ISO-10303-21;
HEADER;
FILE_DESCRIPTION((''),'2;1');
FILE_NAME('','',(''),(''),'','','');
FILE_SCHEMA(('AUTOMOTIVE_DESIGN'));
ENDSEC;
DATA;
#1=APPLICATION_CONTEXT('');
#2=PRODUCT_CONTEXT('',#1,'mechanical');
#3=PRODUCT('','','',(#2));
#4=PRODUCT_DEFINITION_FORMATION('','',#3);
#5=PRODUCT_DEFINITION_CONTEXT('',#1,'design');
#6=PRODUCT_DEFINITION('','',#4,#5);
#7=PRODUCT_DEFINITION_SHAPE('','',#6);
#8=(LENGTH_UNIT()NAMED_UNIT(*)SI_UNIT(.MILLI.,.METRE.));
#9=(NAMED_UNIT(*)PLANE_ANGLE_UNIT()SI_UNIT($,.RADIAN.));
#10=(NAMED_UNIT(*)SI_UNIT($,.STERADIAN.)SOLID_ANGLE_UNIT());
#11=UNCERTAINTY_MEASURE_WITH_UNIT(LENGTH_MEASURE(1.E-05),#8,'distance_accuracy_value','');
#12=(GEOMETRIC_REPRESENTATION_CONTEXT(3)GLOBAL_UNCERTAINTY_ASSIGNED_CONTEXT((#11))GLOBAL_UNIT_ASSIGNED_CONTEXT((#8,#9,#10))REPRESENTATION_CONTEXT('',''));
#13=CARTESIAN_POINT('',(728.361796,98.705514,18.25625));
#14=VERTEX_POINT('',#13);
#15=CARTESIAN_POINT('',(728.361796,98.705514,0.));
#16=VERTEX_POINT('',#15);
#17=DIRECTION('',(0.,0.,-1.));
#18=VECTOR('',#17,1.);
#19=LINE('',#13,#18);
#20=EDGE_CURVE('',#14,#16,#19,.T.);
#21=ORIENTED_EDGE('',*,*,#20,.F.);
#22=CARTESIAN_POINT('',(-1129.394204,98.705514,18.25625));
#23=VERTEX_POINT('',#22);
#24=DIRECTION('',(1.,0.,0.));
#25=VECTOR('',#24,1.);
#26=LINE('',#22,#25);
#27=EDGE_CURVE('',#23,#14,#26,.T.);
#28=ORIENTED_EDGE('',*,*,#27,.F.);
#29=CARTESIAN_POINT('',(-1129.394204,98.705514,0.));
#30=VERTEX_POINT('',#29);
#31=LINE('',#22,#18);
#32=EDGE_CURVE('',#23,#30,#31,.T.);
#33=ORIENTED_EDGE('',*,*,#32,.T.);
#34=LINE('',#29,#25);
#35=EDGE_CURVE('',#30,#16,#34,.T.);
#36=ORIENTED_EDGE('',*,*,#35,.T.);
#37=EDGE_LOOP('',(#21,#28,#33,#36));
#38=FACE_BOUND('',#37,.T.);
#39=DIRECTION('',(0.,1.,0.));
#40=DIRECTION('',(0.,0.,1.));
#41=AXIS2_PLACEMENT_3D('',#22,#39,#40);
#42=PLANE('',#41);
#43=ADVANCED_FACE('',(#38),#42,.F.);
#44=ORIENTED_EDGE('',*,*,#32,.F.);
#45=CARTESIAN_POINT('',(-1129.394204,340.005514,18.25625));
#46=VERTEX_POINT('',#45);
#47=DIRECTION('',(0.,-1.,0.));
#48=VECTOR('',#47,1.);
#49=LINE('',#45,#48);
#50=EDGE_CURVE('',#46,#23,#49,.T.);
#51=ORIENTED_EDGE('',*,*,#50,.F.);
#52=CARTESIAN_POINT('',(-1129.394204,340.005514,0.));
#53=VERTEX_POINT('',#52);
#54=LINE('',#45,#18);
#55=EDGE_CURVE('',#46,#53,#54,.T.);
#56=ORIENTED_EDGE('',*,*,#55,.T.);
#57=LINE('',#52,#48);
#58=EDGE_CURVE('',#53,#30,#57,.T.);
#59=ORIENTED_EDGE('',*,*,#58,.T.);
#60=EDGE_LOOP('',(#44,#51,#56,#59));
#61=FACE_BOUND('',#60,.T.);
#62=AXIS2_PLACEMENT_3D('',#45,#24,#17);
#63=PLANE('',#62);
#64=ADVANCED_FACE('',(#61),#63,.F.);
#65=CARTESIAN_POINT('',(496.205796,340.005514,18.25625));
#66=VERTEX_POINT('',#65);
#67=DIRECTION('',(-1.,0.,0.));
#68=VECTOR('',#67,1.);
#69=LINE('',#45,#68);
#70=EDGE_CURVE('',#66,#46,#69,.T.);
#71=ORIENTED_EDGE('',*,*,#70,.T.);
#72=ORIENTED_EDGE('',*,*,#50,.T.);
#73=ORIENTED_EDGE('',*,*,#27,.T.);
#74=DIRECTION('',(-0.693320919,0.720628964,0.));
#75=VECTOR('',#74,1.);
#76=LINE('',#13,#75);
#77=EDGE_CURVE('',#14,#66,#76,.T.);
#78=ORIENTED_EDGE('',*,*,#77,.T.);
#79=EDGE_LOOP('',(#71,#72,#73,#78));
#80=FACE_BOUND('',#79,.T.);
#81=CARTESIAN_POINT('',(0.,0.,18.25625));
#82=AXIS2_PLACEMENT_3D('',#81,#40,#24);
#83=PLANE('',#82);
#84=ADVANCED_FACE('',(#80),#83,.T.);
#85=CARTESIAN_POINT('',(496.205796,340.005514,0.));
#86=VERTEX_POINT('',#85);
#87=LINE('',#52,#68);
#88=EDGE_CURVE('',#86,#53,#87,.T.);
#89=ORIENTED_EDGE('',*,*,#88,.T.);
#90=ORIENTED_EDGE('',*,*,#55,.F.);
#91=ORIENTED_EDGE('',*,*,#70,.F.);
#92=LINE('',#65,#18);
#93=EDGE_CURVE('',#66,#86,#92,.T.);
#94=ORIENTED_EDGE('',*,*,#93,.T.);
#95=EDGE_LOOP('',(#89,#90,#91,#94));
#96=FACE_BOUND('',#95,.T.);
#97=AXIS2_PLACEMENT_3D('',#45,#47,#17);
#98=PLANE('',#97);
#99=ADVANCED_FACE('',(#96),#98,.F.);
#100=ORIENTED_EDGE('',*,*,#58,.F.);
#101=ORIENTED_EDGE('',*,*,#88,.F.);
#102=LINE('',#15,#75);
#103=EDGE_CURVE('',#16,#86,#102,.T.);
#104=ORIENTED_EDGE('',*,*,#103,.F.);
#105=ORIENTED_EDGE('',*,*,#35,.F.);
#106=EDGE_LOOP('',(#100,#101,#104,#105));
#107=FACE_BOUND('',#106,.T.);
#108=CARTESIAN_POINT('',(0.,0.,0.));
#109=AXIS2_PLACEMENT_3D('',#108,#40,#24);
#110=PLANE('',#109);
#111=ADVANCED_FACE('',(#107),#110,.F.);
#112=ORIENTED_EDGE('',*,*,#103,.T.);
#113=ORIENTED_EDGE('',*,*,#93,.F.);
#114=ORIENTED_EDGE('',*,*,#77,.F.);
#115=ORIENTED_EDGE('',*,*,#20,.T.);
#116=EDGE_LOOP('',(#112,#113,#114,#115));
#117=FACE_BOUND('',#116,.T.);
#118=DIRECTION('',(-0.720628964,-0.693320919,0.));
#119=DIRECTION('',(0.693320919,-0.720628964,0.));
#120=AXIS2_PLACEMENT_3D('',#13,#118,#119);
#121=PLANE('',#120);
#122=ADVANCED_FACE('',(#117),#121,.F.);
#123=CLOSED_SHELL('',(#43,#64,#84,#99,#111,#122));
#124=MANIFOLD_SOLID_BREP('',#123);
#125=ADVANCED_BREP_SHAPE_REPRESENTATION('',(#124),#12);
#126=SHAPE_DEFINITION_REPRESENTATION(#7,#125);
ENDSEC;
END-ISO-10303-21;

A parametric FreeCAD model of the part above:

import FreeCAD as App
import Part
import Sketcher
Q = App.Units.Quantity


def add_polygon(sketch, points):
    """Adds a closed chain of lines whose ends are joined by coincident constraints."""
    first, n = sketch.GeometryCount, len(points)
    for a, b in zip(points, points[1:] + points[:1]):
        sketch.addGeometry(Part.LineSegment(App.Vector(*a, 0), App.Vector(*b, 0)), False)
    for i in range(n):
        sketch.addConstraint(Sketcher.Constraint("Coincident", first + i, 2, first + (i + 1) % n, 1))

doc = App.newDocument("Part")
body = doc.addObject("PartDesign::Body", "Body")

sketch1 = body.newObject("Sketcher::SketchObject", "Sketch")
sketch1.AttachmentSupport = (doc.getObject("XY_Plane"), [""])
sketch1.MapMode = "FlatFace"
add_polygon(sketch1, [(728.361796, 98.705514), (496.205796, 340.005514), (-1129.394204, 340.005514), (-1129.394204, 98.705514)])
sketch1.addConstraint([
    Sketcher.Constraint("Horizontal", 1),
    Sketcher.Constraint("Vertical", 2),
    Sketcher.Constraint("Horizontal", 3),
    Sketcher.Constraint("DistanceX", 1, 2, 1, 1, Q("64 in")),
    Sketcher.Constraint("DistanceY", 2, 2, 2, 1, Q("9.5 in")),
    Sketcher.Constraint("DistanceX", 3, 1, 3, 2, Q("73.14 in")),
    Sketcher.Constraint("DistanceX", -1, 1, 0, 2, 496.205796),
    Sketcher.Constraint("DistanceY", -1, 1, 0, 2, 340.005514),
])
pad1 = body.newObject("PartDesign::Pad", "Pad")
pad1.Profile = sketch1
pad1.Length = Q("0.71875 in")

doc.recompute()
